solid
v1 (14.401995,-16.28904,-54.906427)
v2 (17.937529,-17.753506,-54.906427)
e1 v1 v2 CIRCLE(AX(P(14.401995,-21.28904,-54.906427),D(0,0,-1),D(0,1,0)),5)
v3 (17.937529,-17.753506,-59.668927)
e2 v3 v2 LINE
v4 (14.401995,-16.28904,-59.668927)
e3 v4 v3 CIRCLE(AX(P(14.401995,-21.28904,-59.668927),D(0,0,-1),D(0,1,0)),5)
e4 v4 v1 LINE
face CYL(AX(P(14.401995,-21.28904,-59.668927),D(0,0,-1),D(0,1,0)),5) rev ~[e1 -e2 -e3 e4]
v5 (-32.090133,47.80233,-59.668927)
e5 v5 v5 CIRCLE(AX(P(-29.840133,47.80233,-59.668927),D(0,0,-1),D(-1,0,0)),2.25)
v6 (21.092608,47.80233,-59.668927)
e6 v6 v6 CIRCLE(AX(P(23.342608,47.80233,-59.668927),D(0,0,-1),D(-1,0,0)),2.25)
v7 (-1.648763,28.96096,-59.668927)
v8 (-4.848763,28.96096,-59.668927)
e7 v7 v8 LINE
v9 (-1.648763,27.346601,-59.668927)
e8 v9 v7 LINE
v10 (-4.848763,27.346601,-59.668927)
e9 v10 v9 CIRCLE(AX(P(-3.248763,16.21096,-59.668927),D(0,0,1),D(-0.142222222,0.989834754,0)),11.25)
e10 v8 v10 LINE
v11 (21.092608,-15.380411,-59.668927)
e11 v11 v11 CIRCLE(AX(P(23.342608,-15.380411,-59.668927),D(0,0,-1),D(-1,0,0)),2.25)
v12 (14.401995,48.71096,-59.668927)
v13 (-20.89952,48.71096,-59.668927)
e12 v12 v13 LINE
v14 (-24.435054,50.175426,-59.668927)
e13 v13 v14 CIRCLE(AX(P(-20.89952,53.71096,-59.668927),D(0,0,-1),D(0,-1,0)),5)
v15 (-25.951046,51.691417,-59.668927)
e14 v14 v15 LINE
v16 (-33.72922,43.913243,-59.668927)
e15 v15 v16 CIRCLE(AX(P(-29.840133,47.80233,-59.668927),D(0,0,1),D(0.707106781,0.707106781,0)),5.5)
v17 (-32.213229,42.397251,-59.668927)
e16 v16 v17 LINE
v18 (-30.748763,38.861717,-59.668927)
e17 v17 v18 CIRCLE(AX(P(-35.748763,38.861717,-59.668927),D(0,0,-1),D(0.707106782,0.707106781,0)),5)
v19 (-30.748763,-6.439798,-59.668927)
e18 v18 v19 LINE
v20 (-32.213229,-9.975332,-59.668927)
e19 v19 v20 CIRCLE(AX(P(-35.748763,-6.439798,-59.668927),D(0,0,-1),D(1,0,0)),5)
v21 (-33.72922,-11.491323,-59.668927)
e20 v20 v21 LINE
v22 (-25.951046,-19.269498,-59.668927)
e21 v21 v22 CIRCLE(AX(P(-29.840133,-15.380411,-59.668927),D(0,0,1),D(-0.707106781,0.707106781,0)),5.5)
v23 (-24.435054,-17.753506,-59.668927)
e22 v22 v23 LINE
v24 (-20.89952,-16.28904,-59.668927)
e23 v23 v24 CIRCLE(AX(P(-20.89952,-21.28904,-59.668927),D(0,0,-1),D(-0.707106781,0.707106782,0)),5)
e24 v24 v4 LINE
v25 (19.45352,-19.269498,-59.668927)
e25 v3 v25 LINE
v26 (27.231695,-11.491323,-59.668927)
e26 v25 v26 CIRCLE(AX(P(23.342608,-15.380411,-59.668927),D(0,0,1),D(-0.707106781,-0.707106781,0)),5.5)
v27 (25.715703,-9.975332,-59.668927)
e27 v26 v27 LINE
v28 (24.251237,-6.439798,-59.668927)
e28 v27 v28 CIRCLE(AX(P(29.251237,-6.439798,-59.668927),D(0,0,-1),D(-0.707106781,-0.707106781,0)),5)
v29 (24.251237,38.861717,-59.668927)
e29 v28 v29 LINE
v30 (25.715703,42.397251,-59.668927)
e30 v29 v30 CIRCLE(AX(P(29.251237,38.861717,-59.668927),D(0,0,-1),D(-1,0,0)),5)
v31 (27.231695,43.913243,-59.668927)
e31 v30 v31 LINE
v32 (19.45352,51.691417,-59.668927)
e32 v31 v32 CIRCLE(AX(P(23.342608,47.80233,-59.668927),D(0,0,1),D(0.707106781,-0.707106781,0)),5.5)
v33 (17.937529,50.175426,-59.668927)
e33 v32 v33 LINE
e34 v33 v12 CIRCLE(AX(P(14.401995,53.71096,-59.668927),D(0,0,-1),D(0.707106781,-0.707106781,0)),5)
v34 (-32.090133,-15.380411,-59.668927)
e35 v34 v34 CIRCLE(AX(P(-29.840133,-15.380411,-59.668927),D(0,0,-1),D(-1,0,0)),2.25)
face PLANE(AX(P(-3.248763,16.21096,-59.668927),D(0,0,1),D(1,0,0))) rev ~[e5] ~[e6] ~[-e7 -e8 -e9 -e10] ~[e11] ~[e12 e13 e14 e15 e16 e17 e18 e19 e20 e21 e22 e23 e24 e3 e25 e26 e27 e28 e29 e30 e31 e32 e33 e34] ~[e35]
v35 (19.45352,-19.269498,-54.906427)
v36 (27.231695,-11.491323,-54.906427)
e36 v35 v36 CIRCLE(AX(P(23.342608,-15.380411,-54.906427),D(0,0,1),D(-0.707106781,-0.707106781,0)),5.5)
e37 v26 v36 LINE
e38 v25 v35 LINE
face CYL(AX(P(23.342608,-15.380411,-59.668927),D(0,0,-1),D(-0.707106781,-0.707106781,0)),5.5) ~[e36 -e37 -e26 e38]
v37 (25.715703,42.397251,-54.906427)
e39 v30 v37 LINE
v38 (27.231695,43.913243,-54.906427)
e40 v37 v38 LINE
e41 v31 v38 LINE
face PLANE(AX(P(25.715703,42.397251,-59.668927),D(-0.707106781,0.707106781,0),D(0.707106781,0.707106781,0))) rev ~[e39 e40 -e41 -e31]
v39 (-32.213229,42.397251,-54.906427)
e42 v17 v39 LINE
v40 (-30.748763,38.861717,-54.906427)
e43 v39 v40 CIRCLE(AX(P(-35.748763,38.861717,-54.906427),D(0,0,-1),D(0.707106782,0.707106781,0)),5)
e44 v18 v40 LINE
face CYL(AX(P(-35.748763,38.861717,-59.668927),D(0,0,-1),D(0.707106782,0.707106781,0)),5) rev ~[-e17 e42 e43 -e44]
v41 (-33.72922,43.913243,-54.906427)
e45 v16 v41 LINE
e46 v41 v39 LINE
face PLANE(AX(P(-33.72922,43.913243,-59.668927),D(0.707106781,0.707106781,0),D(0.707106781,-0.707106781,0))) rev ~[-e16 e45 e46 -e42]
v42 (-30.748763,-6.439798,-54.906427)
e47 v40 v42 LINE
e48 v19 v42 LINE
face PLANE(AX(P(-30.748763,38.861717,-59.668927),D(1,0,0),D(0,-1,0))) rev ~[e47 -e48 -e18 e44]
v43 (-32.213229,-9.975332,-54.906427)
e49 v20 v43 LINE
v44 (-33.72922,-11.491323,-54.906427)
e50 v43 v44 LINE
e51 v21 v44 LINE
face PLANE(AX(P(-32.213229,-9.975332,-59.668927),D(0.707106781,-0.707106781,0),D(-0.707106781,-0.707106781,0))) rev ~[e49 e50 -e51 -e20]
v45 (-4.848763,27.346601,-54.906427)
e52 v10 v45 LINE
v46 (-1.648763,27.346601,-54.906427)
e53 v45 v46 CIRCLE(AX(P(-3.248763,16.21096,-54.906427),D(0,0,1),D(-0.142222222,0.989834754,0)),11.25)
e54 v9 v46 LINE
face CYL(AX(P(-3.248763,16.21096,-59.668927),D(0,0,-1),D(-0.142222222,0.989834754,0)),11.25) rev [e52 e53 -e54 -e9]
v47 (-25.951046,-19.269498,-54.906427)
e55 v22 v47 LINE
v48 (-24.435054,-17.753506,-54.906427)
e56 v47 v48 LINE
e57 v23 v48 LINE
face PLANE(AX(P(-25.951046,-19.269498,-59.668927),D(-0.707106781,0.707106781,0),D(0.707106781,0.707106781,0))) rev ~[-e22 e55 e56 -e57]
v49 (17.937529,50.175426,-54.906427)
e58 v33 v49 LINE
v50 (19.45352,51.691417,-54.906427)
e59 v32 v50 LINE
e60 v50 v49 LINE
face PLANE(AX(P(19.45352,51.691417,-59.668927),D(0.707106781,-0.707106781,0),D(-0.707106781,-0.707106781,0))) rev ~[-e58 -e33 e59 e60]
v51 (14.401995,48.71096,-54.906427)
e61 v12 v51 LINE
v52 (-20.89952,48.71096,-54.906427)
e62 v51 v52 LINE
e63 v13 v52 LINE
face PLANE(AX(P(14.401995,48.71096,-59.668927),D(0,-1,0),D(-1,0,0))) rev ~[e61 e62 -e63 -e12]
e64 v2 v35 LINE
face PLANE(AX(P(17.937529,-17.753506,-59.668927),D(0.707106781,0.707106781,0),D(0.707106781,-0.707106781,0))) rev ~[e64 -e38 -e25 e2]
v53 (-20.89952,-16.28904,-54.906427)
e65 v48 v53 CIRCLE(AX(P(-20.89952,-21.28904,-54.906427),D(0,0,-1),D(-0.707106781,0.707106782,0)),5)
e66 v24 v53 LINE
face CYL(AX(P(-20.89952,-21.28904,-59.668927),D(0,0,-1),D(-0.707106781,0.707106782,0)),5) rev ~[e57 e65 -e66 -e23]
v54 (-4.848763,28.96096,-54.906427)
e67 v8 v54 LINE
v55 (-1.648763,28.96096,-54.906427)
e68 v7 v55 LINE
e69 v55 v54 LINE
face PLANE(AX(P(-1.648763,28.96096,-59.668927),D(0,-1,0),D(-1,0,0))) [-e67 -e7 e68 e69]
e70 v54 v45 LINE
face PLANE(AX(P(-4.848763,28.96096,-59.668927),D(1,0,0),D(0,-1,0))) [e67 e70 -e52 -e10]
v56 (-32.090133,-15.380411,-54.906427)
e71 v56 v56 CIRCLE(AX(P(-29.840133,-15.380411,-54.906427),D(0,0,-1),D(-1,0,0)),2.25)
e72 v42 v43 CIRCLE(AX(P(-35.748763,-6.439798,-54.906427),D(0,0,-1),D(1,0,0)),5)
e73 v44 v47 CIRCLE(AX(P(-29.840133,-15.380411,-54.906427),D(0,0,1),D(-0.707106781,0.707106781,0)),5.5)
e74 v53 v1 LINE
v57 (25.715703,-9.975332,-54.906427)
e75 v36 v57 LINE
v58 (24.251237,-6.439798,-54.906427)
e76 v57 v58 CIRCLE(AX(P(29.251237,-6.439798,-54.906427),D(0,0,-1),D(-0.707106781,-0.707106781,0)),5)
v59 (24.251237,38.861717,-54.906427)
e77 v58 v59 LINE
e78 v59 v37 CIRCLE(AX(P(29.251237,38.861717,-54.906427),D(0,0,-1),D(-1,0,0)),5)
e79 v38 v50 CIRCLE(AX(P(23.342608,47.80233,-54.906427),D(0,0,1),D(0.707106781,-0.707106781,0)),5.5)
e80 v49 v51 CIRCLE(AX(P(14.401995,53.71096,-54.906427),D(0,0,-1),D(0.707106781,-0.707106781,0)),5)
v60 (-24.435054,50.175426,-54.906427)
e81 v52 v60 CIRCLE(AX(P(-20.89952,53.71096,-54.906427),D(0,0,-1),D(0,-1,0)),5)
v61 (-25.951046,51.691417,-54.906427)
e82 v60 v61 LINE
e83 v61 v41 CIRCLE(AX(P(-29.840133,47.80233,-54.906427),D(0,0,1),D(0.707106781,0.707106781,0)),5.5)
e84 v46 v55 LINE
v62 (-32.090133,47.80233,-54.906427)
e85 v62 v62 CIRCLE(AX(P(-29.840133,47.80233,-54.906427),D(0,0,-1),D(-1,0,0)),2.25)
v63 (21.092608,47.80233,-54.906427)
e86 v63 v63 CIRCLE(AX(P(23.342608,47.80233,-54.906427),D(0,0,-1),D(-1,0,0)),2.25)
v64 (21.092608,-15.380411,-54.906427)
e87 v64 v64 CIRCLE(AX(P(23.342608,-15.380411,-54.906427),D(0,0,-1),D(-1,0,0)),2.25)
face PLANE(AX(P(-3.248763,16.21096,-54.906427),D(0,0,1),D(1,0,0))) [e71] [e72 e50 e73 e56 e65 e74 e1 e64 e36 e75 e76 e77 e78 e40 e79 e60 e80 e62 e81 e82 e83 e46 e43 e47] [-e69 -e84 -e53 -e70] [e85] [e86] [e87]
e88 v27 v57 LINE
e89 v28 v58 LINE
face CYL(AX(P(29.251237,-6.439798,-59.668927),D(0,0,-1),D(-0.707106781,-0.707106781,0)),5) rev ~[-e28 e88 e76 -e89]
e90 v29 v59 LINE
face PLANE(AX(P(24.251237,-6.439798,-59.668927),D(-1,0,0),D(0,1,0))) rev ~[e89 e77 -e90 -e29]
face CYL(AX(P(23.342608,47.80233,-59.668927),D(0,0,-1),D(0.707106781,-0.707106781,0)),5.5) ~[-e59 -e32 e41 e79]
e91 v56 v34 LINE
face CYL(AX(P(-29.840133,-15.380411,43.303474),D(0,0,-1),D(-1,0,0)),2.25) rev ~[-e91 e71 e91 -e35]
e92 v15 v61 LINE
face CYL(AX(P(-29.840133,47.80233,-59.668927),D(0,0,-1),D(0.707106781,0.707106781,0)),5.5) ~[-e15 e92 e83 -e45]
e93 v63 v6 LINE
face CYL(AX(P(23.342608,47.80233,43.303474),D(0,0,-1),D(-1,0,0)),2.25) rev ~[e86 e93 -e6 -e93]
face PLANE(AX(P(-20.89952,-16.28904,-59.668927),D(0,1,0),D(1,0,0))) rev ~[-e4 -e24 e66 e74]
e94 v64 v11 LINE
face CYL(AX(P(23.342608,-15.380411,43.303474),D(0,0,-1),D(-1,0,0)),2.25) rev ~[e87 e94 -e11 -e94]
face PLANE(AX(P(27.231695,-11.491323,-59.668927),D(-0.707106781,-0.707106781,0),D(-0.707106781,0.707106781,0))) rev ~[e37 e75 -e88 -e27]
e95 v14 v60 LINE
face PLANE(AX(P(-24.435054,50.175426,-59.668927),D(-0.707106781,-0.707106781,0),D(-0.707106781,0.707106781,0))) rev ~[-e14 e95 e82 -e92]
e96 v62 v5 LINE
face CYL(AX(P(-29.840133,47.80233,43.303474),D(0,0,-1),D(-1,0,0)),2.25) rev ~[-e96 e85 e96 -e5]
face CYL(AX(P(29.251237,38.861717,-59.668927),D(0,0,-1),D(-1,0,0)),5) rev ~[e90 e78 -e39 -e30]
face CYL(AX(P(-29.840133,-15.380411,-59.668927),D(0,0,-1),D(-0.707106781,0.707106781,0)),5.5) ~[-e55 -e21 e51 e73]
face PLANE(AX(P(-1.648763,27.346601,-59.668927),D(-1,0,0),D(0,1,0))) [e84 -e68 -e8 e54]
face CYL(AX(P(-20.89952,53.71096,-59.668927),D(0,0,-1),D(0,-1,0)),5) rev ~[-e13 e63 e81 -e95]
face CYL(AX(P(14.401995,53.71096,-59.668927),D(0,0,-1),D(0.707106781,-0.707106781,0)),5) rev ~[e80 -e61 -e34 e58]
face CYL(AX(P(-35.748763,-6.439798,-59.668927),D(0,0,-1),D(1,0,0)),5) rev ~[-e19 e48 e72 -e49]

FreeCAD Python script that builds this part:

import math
import FreeCAD as App
import Part
import Sketcher
Q = App.Units.Quantity

doc = App.newDocument("Part")
body = doc.addObject("PartDesign::Body", "Body")

# Sketch on XY plane
sketch1 = body.newObject("Sketcher::SketchObject", "Sketch")
sketch1.AttachmentSupport = (doc.getObject("XY_Plane"), [""])
sketch1.MapMode = "FlatFace"
sketch1.AttachmentOffset = App.Placement(App.Vector(0, 0, -59.668927), App.Rotation())
sketch1.addGeometry(Part.LineSegment(App.Vector(14.401995, 48.71096, 0), App.Vector(-20.89952, 48.71096, 0)), False)
sketch1.addGeometry(Part.ArcOfCircle(Part.Circle(App.Vector(-20.89952, 53.71096, 0), App.Vector(0, 0, 1), 5), math.radians(-135), math.radians(-90)), False)
sketch1.addGeometry(Part.LineSegment(App.Vector(-24.435054, 50.175426, 0), App.Vector(-25.951046, 51.691417, 0)), False)
sketch1.addGeometry(Part.ArcOfCircle(Part.Circle(App.Vector(-29.840133, 47.80233, 0), App.Vector(0, 0, 1), 5.5), math.radians(45), math.radians(225)), False)
sketch1.addGeometry(Part.LineSegment(App.Vector(-33.72922, 43.913243, 0), App.Vector(-32.213229, 42.397251, 0)), False)
sketch1.addGeometry(Part.ArcOfCircle(Part.Circle(App.Vector(-35.748763, 38.861717, 0), App.Vector(0, 0, 1), 5), math.radians(0), math.radians(45)), False)
sketch1.addGeometry(Part.LineSegment(App.Vector(-30.748763, 38.861717, 0), App.Vector(-30.748763, -6.439798, 0)), False)
sketch1.addGeometry(Part.ArcOfCircle(Part.Circle(App.Vector(-35.748763, -6.439798, 0), App.Vector(0, 0, 1), 5), math.radians(-45), math.radians(0)), False)
sketch1.addGeometry(Part.LineSegment(App.Vector(-32.213229, -9.975332, 0), App.Vector(-33.72922, -11.491323, 0)), False)
sketch1.addGeometry(Part.ArcOfCircle(Part.Circle(App.Vector(-29.840133, -15.380411, 0), App.Vector(0, 0, 1), 5.5), math.radians(135), math.radians(315)), False)
sketch1.addGeometry(Part.LineSegment(App.Vector(-25.951046, -19.269498, 0), App.Vector(-24.435054, -17.753506, 0)), False)
sketch1.addGeometry(Part.ArcOfCircle(Part.Circle(App.Vector(-20.89952, -21.28904, 0), App.Vector(0, 0, 1), 5), math.radians(90), math.radians(135)), False)
sketch1.addGeometry(Part.LineSegment(App.Vector(-20.89952, -16.28904, 0), App.Vector(14.401995, -16.28904, 0)), False)
sketch1.addGeometry(Part.ArcOfCircle(Part.Circle(App.Vector(14.401995, -21.28904, 0), App.Vector(0, 0, 1), 5), math.radians(45), math.radians(90)), False)
sketch1.addGeometry(Part.LineSegment(App.Vector(17.937529, -17.753506, 0), App.Vector(19.45352, -19.269498, 0)), False)
sketch1.addGeometry(Part.ArcOfCircle(Part.Circle(App.Vector(23.342608, -15.380411, 0), App.Vector(0, 0, 1), 5.5), math.radians(-135), math.radians(45)), False)
sketch1.addGeometry(Part.LineSegment(App.Vector(27.231695, -11.491323, 0), App.Vector(25.715703, -9.975332, 0)), False)
sketch1.addGeometry(Part.ArcOfCircle(Part.Circle(App.Vector(29.251237, -6.439798, 0), App.Vector(0, 0, 1), 5), math.radians(180), math.radians(225)), False)
sketch1.addGeometry(Part.LineSegment(App.Vector(24.251237, -6.439798, 0), App.Vector(24.251237, 38.861717, 0)), False)
sketch1.addGeometry(Part.ArcOfCircle(Part.Circle(App.Vector(29.251237, 38.861717, 0), App.Vector(0, 0, 1), 5), math.radians(135), math.radians(180)), False)
sketch1.addGeometry(Part.LineSegment(App.Vector(25.715703, 42.397251, 0), App.Vector(27.231695, 43.913243, 0)), False)
sketch1.addGeometry(Part.ArcOfCircle(Part.Circle(App.Vector(23.342608, 47.80233, 0), App.Vector(0, 0, 1), 5.5), math.radians(-45), math.radians(135)), False)
sketch1.addGeometry(Part.LineSegment(App.Vector(19.45352, 51.691417, 0), App.Vector(17.937529, 50.175426, 0)), False)
sketch1.addGeometry(Part.ArcOfCircle(Part.Circle(App.Vector(14.401995, 53.71096, 0), App.Vector(0, 0, 1), 5), math.radians(-90), math.radians(-45)), False)
sketch1.addGeometry(Part.LineSegment(App.Vector(-1.648763, 28.96096, 0), App.Vector(-1.648763, 27.346601, 0)), False)
sketch1.addGeometry(Part.ArcOfCircle(Part.Circle(App.Vector(-3.248763, 16.21096, 0), App.Vector(0, 0, 1), 11.25), math.radians(98.176457), math.radians(441.823543)), False)
sketch1.addGeometry(Part.LineSegment(App.Vector(-4.848763, 27.346601, 0), App.Vector(-4.848763, 28.96096, 0)), False)
sketch1.addGeometry(Part.LineSegment(App.Vector(-4.848763, 28.96096, 0), App.Vector(-1.648763, 28.96096, 0)), False)
sketch1.addConstraint(Sketcher.Constraint("Tangent", 0, 2, 1, 2))
sketch1.addConstraint(Sketcher.Constraint("Tangent", 1, 1, 2, 1))
sketch1.addConstraint(Sketcher.Constraint("Tangent", 2, 2, 3, 1))
sketch1.addConstraint(Sketcher.Constraint("Tangent", 3, 2, 4, 1))
sketch1.addConstraint(Sketcher.Constraint("Tangent", 4, 2, 5, 2))
sketch1.addConstraint(Sketcher.Constraint("Tangent", 5, 1, 6, 1))
sketch1.addConstraint(Sketcher.Constraint("Tangent", 6, 2, 7, 2))
sketch1.addConstraint(Sketcher.Constraint("Tangent", 7, 1, 8, 1))
sketch1.addConstraint(Sketcher.Constraint("Tangent", 8, 2, 9, 1))
sketch1.addConstraint(Sketcher.Constraint("Tangent", 9, 2, 10, 1))
sketch1.addConstraint(Sketcher.Constraint("Tangent", 10, 2, 11, 2))
sketch1.addConstraint(Sketcher.Constraint("Tangent", 11, 1, 12, 1))
sketch1.addConstraint(Sketcher.Constraint("Tangent", 12, 2, 13, 2))
sketch1.addConstraint(Sketcher.Constraint("Tangent", 13, 1, 14, 1))
sketch1.addConstraint(Sketcher.Constraint("Tangent", 14, 2, 15, 1))
sketch1.addConstraint(Sketcher.Constraint("Tangent", 15, 2, 16, 1))
sketch1.addConstraint(Sketcher.Constraint("Tangent", 16, 2, 17, 2))
sketch1.addConstraint(Sketcher.Constraint("Tangent", 17, 1, 18, 1))
sketch1.addConstraint(Sketcher.Constraint("Tangent", 18, 2, 19, 2))
sketch1.addConstraint(Sketcher.Constraint("Tangent", 19, 1, 20, 1))
sketch1.addConstraint(Sketcher.Constraint("Tangent", 20, 2, 21, 1))
sketch1.addConstraint(Sketcher.Constraint("Tangent", 21, 2, 22, 1))
sketch1.addConstraint(Sketcher.Constraint("Tangent", 22, 2, 23, 2))
sketch1.addConstraint(Sketcher.Constraint("Tangent", 23, 1, 0, 1))
sketch1.addConstraint(Sketcher.Constraint("Coincident", 24, 2, 25, 2))
sketch1.addConstraint(Sketcher.Constraint("Coincident", 25, 1, 26, 1))
sketch1.addConstraint(Sketcher.Constraint("Coincident", 26, 2, 27, 1))
sketch1.addConstraint(Sketcher.Constraint("Coincident", 27, 2, 24, 1))
sketch1.addConstraint(Sketcher.Constraint("Horizontal", 0))
sketch1.addConstraint(Sketcher.Constraint("Vertical", 6))
sketch1.addConstraint(Sketcher.Constraint("Horizontal", 12))
sketch1.addConstraint(Sketcher.Constraint("Vertical", 18))
sketch1.addConstraint(Sketcher.Constraint("Vertical", 24))
sketch1.addConstraint(Sketcher.Constraint("Vertical", 26))
sketch1.addConstraint(Sketcher.Constraint("Horizontal", 27))
sketch1.addConstraint(Sketcher.Constraint("Equal", 1, 5))
sketch1.addConstraint(Sketcher.Constraint("Equal", 5, 7))
sketch1.addConstraint(Sketcher.Constraint("Equal", 3, 9))
sketch1.addConstraint(Sketcher.Constraint("Equal", 7, 11))
sketch1.addConstraint(Sketcher.Constraint("Equal", 11, 13))
sketch1.addConstraint(Sketcher.Constraint("Equal", 9, 15))
sketch1.addConstraint(Sketcher.Constraint("Equal", 13, 17))
sketch1.addConstraint(Sketcher.Constraint("Equal", 17, 19))
sketch1.addConstraint(Sketcher.Constraint("Equal", 15, 21))
sketch1.addConstraint(Sketcher.Constraint("Equal", 19, 23))
sketch1.addConstraint(Sketcher.Constraint("Parallel", 2, 4))
sketch1.addConstraint(Sketcher.Constraint("Perpendicular", 4, 8))
sketch1.addConstraint(Sketcher.Constraint("Parallel", 8, 10))
sketch1.addConstraint(Sketcher.Constraint("Perpendicular", 10, 14))
sketch1.addConstraint(Sketcher.Constraint("Parallel", 14, 16))
sketch1.addConstraint(Sketcher.Constraint("Perpendicular", 16, 20))
sketch1.addConstraint(Sketcher.Constraint("Parallel", 20, 22))
sketch1.addConstraint(Sketcher.Constraint("Horizontal", 9, 3, 15, 3))
sketch1.addConstraint(Sketcher.Constraint("Horizontal", 7, 3, 17, 3))
sketch1.addConstraint(Sketcher.Constraint("Horizontal", 5, 3, 19, 3))
sketch1.addConstraint(Sketcher.Constraint("Horizontal", 3, 3, 21, 3))
sketch1.addConstraint(Sketcher.Constraint("Horizontal", 10, 2, 13, 1))
sketch1.addConstraint(Sketcher.Constraint("Horizontal", 24, 2, 25, 1))
sketch1.addConstraint(Sketcher.Constraint("Vertical", 3, 3, 9, 3))
sketch1.addConstraint(Sketcher.Constraint("Vertical", 1, 3, 11, 3))
sketch1.addConstraint(Sketcher.Constraint("Equal", 2, 4))
sketch1.addConstraint(Sketcher.Constraint("Radius", 1, Q("5 mm")))
sketch1.addConstraint(Sketcher.Constraint("Radius", 3, Q("5.5 mm")))
sketch1.addConstraint(Sketcher.Constraint("Radius", 25, Q("11.25 mm")))
sketch1.addConstraint(Sketcher.Constraint("DistanceX", 27, 1, 27, 2, Q("3.2 mm")))
sketch1.addConstraint(Sketcher.Constraint("DistanceY", 11, 3, 1, 3, Q("75 mm")))
sketch1.addConstraint(Sketcher.Constraint("DistanceX", 7, 3, 17, 3, Q("65 mm")))
sketch1.addConstraint(Sketcher.Constraint("DistanceX", 25, 3, 17, 3, Q("32.5 mm")))
sketch1.addConstraint(Sketcher.Constraint("DistanceY", 25, 3, 0, 2, Q("32.5 mm")))
sketch1.addConstraint(Sketcher.Constraint("DistanceY", 25, 3, 26, 2, Q("12.75 mm")))
sketch1.addConstraint(Sketcher.Constraint("DistanceY", -1, 1, 24, 2, Q("27.346601 mm")))
sketch1.addConstraint(Sketcher.Constraint("DistanceY", 5, 3, 2, 2, Q("12.8297 mm")))
sketch1.addConstraint(Sketcher.Constraint("DistanceX", 1, 3, -1, 1, Q("20.89952 mm")))
pad1 = body.newObject("PartDesign::Pad", "Pad")
pad1.Profile = sketch1
pad1.Length = 4.7625

# Sketch on XY plane
sketch2 = body.newObject("Sketcher::SketchObject", "Sketch001")
sketch2.AttachmentSupport = (doc.getObject("XY_Plane"), [""])
sketch2.MapMode = "FlatFace"
sketch2.AttachmentOffset = App.Placement(App.Vector(0, 0, -54.906427), App.Rotation())
sketch2.addGeometry(Part.Circle(App.Vector(-29.840133, 47.80233, 0), App.Vector(0, 0, 1), 2.25), False)
sketch2.addGeometry(Part.Circle(App.Vector(23.342608, 47.80233, 0), App.Vector(0, 0, 1), 2.25), False)
sketch2.addGeometry(Part.Circle(App.Vector(23.342608, -15.380411, 0), App.Vector(0, 0, 1), 2.25), False)
sketch2.addGeometry(Part.Circle(App.Vector(-29.840133, -15.380411, 0), App.Vector(0, 0, 1), 2.25), False)
sketch2.addConstraint(Sketcher.Constraint("Equal", 0, 1))
sketch2.addConstraint(Sketcher.Constraint("Equal", 1, 2))
sketch2.addConstraint(Sketcher.Constraint("Equal", 2, 3))
sketch2.addConstraint(Sketcher.Constraint("Horizontal", 0, 3, 1, 3))
sketch2.addConstraint(Sketcher.Constraint("Horizontal", 2, 3, 3, 3))
sketch2.addConstraint(Sketcher.Constraint("Vertical", 1, 3, 2, 3))
sketch2.addConstraint(Sketcher.Constraint("Vertical", 0, 3, 3, 3))
sketch2.addConstraint(Sketcher.Constraint("Diameter", 0, Q("4.5 mm")))
sketch2.addConstraint(Sketcher.Constraint("DistanceY", -1, 1, 0, 3, Q("47.80233 mm")))
sketch2.addConstraint(Sketcher.Constraint("DistanceY", 2, 3, -1, 1, Q("15.380411 mm")))
sketch2.addConstraint(Sketcher.Constraint("DistanceX", 0, 3, 1, 3, Q("53.182741 mm")))
sketch2.addConstraint(Sketcher.Constraint("DistanceX", 0, 3, -1, 1, Q("29.840133 mm")))
doc.recompute()
hole = body.newObject("PartDesign::Hole", "Hole")
hole.Profile = sketch2
hole.ThreadType = "None"
hole.Diameter = 4.5
hole.DepthType = "ThroughAll"

doc.recompute()
